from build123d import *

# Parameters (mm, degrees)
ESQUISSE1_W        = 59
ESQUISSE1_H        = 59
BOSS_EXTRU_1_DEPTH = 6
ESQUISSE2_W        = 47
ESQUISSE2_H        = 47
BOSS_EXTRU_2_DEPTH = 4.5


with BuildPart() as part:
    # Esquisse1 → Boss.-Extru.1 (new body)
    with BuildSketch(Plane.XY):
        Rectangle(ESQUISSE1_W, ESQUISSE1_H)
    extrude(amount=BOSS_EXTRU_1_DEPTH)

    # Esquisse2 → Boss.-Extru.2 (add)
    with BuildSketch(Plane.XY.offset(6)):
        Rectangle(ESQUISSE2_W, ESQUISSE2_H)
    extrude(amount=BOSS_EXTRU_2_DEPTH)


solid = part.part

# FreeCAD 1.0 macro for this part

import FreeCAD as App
import Part
import Sketcher

V = App.Vector


def add_polygon(sketch, points):
    """Adds a closed chain of lines whose ends are joined by coincident constraints."""
    first, n = sketch.GeometryCount, len(points)
    for a, b in zip(points, points[1:] + points[:1]):
        sketch.addGeometry(Part.LineSegment(App.Vector(*a, 0), App.Vector(*b, 0)), False)
    for i in range(n):
        sketch.addConstraint(Sketcher.Constraint("Coincident", first + i, 2, first + (i + 1) % n, 1))

doc = App.newDocument("Part")
body = doc.addObject("PartDesign::Body", "Body")

# Sketch on XY plane
sketch1 = body.newObject("Sketcher::SketchObject", "Sketch")
sketch1.AttachmentSupport = (doc.getObject("XY_Plane"), [""])
sketch1.MapMode = "FlatFace"
add_polygon(sketch1, [(-30, 30), (-30, -30), (30, -30), (30, 30)])  # lines 0-3
sketch1.addConstraint([
    Sketcher.Constraint("Vertical", 0),
    Sketcher.Constraint("Horizontal", 1),
    Sketcher.Constraint("Vertical", 2),
    Sketcher.Constraint("Horizontal", 3),
    Sketcher.Constraint("Symmetric", 0, 2, 2, 2, -1, 1),
    Sketcher.Constraint("Equal", 3, 0),
    Sketcher.Constraint("DistanceX", 1, 1, 1, 2, 59.0),
])
pad1 = body.newObject("PartDesign::Pad", "Pad")
pad1.Profile = sketch1
pad1.Length = 6

# Sketch on XY plane
sketch2 = body.newObject("Sketcher::SketchObject", "Sketch001")
sketch2.AttachmentSupport = (doc.getObject("XY_Plane"), [""])
sketch2.MapMode = "FlatFace"
sketch2.AttachmentOffset = App.Placement(V(0, 0, 6), App.Rotation())
add_polygon(sketch2, [(-24, 24), (-24, -24), (24, -24), (24, 24)])  # lines 0-3
sketch2.addConstraint([
    Sketcher.Constraint("Vertical", 0),
    Sketcher.Constraint("Horizontal", 1),
    Sketcher.Constraint("Vertical", 2),
    Sketcher.Constraint("Horizontal", 3),
    Sketcher.Constraint("Symmetric", 0, 2, 2, 2, -1, 1),
    Sketcher.Constraint("Equal", 3, 0),
    Sketcher.Constraint("DistanceX", 1, 1, 1, 2, 47.0),
])
pad2 = body.newObject("PartDesign::Pad", "Pad001")
pad2.Profile = sketch2
pad2.Length = 4.5

doc.recompute()
